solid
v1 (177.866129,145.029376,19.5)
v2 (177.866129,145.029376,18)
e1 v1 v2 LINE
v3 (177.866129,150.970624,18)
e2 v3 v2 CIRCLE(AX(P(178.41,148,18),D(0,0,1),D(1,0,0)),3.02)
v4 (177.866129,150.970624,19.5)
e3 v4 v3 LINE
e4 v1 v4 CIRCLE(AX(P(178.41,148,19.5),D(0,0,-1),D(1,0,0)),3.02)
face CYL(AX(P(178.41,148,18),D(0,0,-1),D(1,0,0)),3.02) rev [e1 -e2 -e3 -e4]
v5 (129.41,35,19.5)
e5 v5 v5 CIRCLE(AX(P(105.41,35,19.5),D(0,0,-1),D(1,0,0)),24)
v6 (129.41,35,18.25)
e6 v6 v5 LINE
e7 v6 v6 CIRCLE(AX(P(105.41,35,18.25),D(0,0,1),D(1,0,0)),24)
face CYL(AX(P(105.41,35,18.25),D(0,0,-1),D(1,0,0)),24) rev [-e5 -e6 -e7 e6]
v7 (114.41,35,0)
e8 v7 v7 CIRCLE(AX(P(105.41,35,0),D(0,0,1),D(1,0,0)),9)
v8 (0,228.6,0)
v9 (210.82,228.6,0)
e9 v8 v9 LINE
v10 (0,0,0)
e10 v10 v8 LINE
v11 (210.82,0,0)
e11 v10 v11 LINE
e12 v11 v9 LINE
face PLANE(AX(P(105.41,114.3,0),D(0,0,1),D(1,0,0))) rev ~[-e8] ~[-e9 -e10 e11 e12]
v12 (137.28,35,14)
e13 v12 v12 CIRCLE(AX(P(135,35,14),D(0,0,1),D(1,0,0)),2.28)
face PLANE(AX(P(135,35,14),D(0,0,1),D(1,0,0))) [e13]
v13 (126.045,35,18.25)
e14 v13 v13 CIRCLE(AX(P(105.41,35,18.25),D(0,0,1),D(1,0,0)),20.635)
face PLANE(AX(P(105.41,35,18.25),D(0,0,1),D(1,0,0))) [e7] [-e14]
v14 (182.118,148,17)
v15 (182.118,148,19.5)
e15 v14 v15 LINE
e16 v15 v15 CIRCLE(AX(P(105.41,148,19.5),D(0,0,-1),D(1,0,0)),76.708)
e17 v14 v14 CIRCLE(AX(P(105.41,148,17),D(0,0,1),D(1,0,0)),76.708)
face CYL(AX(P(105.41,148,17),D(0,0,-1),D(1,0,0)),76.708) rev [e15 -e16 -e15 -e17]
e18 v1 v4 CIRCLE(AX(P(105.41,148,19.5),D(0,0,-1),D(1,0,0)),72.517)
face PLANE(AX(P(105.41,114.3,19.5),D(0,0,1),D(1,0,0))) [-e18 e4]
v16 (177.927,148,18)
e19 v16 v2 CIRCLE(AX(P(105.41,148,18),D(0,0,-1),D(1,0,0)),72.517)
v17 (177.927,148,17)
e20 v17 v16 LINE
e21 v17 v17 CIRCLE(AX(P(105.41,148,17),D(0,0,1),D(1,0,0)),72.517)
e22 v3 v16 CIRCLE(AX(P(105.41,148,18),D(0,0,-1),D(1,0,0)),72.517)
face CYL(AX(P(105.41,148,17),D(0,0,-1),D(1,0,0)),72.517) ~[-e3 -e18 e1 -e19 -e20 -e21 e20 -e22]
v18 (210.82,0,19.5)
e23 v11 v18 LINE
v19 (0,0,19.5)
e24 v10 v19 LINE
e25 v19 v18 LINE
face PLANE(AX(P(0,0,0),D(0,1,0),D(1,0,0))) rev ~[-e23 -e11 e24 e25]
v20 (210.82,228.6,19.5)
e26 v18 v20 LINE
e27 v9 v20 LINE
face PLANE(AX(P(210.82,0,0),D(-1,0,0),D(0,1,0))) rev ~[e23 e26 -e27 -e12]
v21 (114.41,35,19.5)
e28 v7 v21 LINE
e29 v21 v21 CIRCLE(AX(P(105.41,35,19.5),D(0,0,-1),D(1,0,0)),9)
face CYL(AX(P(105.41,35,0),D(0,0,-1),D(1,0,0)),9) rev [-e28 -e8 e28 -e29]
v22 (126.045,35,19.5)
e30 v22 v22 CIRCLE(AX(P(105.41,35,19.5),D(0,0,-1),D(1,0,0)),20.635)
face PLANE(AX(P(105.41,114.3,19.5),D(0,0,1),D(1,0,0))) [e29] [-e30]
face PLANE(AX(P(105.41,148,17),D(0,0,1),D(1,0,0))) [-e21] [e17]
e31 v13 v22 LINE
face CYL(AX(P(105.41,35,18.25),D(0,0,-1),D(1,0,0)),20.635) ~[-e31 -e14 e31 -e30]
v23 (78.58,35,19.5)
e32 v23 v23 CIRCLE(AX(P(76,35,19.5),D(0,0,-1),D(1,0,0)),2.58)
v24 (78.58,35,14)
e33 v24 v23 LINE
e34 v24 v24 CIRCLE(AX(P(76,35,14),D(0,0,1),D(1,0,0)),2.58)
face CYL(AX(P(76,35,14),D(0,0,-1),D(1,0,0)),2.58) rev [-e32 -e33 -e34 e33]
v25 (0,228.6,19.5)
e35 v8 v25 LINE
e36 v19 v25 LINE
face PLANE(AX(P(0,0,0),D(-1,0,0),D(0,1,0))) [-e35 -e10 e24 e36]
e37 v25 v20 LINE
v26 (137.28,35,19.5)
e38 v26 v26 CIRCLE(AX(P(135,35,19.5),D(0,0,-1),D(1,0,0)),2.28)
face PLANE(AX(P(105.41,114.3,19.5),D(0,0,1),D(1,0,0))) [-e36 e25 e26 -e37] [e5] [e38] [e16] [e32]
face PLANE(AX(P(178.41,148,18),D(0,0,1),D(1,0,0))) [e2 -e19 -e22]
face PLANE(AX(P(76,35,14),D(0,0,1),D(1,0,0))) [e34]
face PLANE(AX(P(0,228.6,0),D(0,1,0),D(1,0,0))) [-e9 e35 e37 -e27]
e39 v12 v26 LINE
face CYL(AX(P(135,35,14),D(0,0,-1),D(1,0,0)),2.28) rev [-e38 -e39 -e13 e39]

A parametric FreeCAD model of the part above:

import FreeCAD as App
import Part
import Sketcher
from FreeCAD import Vector
Q = App.Units.Quantity

doc = App.newDocument("Part")
body = doc.addObject("PartDesign::Body", "Body")

# Sketch on XY plane
sketch1 = body.newObject("Sketcher::SketchObject", "Sketch")
sketch1.AttachmentSupport = (doc.getObject("XY_Plane"), [""])
sketch1.MapMode = "FlatFace"
sketch1.AttachmentOffset = App.Placement(Vector(0, 0, 14), App.Rotation())
sketch1.addGeometry(Part.Circle(Vector(76, 35, 0), Vector(0, 0, 1), 2.6), False)
sketch1.addConstraint([
    Sketcher.Constraint("Diameter", 0, Q("5.16 mm")),
    Sketcher.Constraint("DistanceX", -1, 1, 0, 3, Q("76 mm")),
    Sketcher.Constraint("DistanceY", -1, 1, 0, 3, Q("35 mm")),
])
pad1 = body.newObject("PartDesign::Pad", "Pad")
pad1.Profile = sketch1
pad1.Length = 29
body2 = doc.addObject("PartDesign::Body", "Body001")

# Sketch on XY plane
sketch2 = body2.newObject("Sketcher::SketchObject", "Sketch001")
sketch2.AttachmentSupport = (doc.getObject("XY_Plane001"), [""])
sketch2.MapMode = "FlatFace"
sketch2.AttachmentOffset = App.Placement(Vector(0, 0, 17), App.Rotation())
sketch2.addGeometry(Part.Circle(Vector(105, 148, 0), Vector(0, 0, 1), 73), False)
sketch2.addConstraint([
    Sketcher.Constraint("Diameter", 0, Q("145.034 mm")),
    Sketcher.Constraint("DistanceY", -1, 1, 0, 3, Q("148 mm")),
    Sketcher.Constraint("DistanceX", -1, 1, 0, 3, Q("105.41 mm")),
])
pad2 = body2.newObject("PartDesign::Pad", "Pad001")
pad2.Profile = sketch2
pad2.Length = 3
body3 = doc.addObject("PartDesign::Body", "Body002")

# Sketch on XY plane
sketch3 = body3.newObject("Sketcher::SketchObject", "Sketch002")
sketch3.AttachmentSupport = (doc.getObject("XY_Plane002"), [""])
sketch3.MapMode = "FlatFace"
sketch3.AttachmentOffset = App.Placement(Vector(0, 0, 17), App.Rotation())
sketch3.addGeometry(Part.Circle(Vector(105, 148, 0), Vector(0, 0, 1), 77), False)
sketch3.addConstraint([
    Sketcher.Constraint("Diameter", 0, Q("153.416 mm")),
    Sketcher.Constraint("DistanceY", -1, 1, 0, 3, Q("148 mm")),
    Sketcher.Constraint("DistanceX", -1, 1, 0, 3, Q("105.41 mm")),
])
pad3 = body3.newObject("PartDesign::Pad", "Pad002")
pad3.Profile = sketch3
pad3.Length = 3
doc.recompute()

boolean = body3.newObject("PartDesign::Boolean", "Boolean")
boolean.Type = "Cut"
boolean.addObjects([body2])
body4 = doc.addObject("PartDesign::Body", "Body003")

# Sketch on XY plane
sketch4 = body4.newObject("Sketcher::SketchObject", "Sketch003")
sketch4.AttachmentSupport = (doc.getObject("XY_Plane003"), [""])
sketch4.MapMode = "FlatFace"
sketch4.AttachmentOffset = App.Placement(Vector(0, 0, 18), App.Rotation())
sketch4.addGeometry(Part.Circle(Vector(178.4, 148, 0), Vector(0, 0, 1), 3), False)
sketch4.addConstraint([
    Sketcher.Constraint("Diameter", 0, Q("6.04 mm")),
    Sketcher.Constraint("DistanceY", -1, 1, 0, 3, Q("148 mm")),
    Sketcher.Constraint("DistanceX", -1, 1, 0, 3, Q("178.41 mm")),
])
pad4 = body4.newObject("PartDesign::Pad", "Pad003")
pad4.Profile = sketch4
pad4.Length = 2
body5 = doc.addObject("PartDesign::Body", "Body004")

# Sketch on XY plane
sketch5 = body5.newObject("Sketcher::SketchObject", "Sketch004")
sketch5.AttachmentSupport = (doc.getObject("XY_Plane004"), [""])
sketch5.MapMode = "FlatFace"
sketch5.addGeometry(Part.Circle(Vector(105, 35, 0), Vector(0, 0, 1), 9), False)
sketch5.addConstraint([
    Sketcher.Constraint("Diameter", 0, Q("18 mm")),
    Sketcher.Constraint("DistanceY", -1, 1, 0, 3, Q("35 mm")),
    Sketcher.Constraint("DistanceX", -1, 1, 0, 3, Q("105.41 mm")),
])
pad5 = body5.newObject("PartDesign::Pad", "Pad004")
pad5.Profile = sketch5
pad5.Length = 21
body6 = doc.addObject("PartDesign::Body", "Body005")

# Sketch on XY plane
sketch6 = body6.newObject("Sketcher::SketchObject", "Sketch005")
sketch6.AttachmentSupport = (doc.getObject("XY_Plane005"), [""])
sketch6.MapMode = "FlatFace"
sketch6.addGeometry(Part.Circle(Vector(0, 0, 0), Vector(0, 0, 1), 21), False)
sketch6.addConstraint([
    Sketcher.Constraint("Coincident", 0, 3, -1, 1),
    Sketcher.Constraint("Diameter", 0, Q("41.27 mm")),
])
pad6 = body6.newObject("PartDesign::Pad", "Pad005")
pad6.Profile = sketch6
pad6.Length = 41.275
body7 = doc.addObject("PartDesign::Body", "Body006")

# Sketch on XY plane
sketch7 = body7.newObject("Sketcher::SketchObject", "Sketch006")
sketch7.AttachmentSupport = (doc.getObject("XY_Plane006"), [""])
sketch7.MapMode = "FlatFace"
sketch7.addGeometry(Part.Circle(Vector(0, 0, 0), Vector(0, 0, 1), 24), False)
sketch7.addConstraint([
    Sketcher.Constraint("Coincident", 0, 3, -1, 1),
    Sketcher.Constraint("Diameter", 0, Q("48 mm")),
])
pad7 = body7.newObject("PartDesign::Pad", "Pad006")
pad7.Profile = sketch7
pad7.Length = 3.175
doc.recompute()

boolean2 = body7.newObject("PartDesign::Boolean", "Boolean001")
boolean2.Type = "Cut"
boolean2.addObjects([body6])
body8 = doc.addObject("PartDesign::Body", "Body007")
doc.recompute()

body7.Placement = App.Placement(Vector(105.41, 35, 18.25), App.Rotation(Vector(0, 0, 1), 0))
boolean3 = body8.newObject("PartDesign::Boolean", "Boolean002")
boolean3.Type = "Fuse"
boolean3.addObjects([body7])
body9 = doc.addObject("PartDesign::Body", "Body008")
body9.AllowCompound = True

# Sketch on XY plane
sketch8 = body9.newObject("Sketcher::SketchObject", "Sketch007")
sketch8.AttachmentSupport = (doc.getObject("XY_Plane008"), [""])
sketch8.MapMode = "FlatFace"
sketch8.AttachmentOffset = App.Placement(Vector(0, 0, 14), App.Rotation())
sketch8.addGeometry(Part.Circle(Vector(135, 35, 0), Vector(0, 0, 1), 2.3), False)
sketch8.addConstraint([
    Sketcher.Constraint("Diameter", 0, Q("4.56 mm")),
    Sketcher.Constraint("DistanceX", -1, 1, 0, 3, Q("135 mm")),
    Sketcher.Constraint("DistanceY", -1, 1, 0, 3, Q("35 mm")),
])
pad8 = body9.newObject("PartDesign::Pad", "Pad007")
pad8.Profile = sketch8
pad8.Length = 29
doc.recompute()

boolean4 = body9.newObject("PartDesign::Boolean", "Boolean003")
boolean4.Type = "Fuse"
boolean4.addObjects([body])
doc.recompute()

boolean5 = body9.newObject("PartDesign::Boolean", "Boolean004")
boolean5.Type = "Fuse"
boolean5.addObjects([body3])
doc.recompute()

boolean6 = body9.newObject("PartDesign::Boolean", "Boolean005")
boolean6.Type = "Fuse"
boolean6.addObjects([body4])
doc.recompute()

boolean7 = body9.newObject("PartDesign::Boolean", "Boolean006")
boolean7.Type = "Fuse"
boolean7.addObjects([body5])
doc.recompute()

boolean8 = body9.newObject("PartDesign::Boolean", "Boolean007")
boolean8.Type = "Fuse"
boolean8.addObjects([body8])
body10 = doc.addObject("PartDesign::Body", "Body009")

# Sketch on XY plane
sketch9 = body10.newObject("Sketcher::SketchObject", "Sketch008")
sketch9.AttachmentSupport = (doc.getObject("XY_Plane009"), [""])
sketch9.MapMode = "FlatFace"
sketch9.addGeometry([
    Part.LineSegment(Vector(0, 229, 0), Vector(0, 0, 0)),
    Part.LineSegment(Vector(0, 0, 0), Vector(211, 0, 0)),
    Part.LineSegment(Vector(211, 0, 0), Vector(211, 229, 0)),
    Part.LineSegment(Vector(211, 229, 0), Vector(0, 229, 0)),
], False)
sketch9.addConstraint([
    Sketcher.Constraint("Coincident", 0, 2, 1, 1),
    Sketcher.Constraint("Coincident", 1, 2, 2, 1),
    Sketcher.Constraint("Coincident", 2, 2, 3, 1),
    Sketcher.Constraint("Coincident", 3, 2, 0, 1),
    Sketcher.Constraint("Vertical", 0),
    Sketcher.Constraint("Horizontal", 1),
    Sketcher.Constraint("Vertical", 2),
    Sketcher.Constraint("Horizontal", 3),
    Sketcher.Constraint("Coincident", 0, 2, -1, 1),
    Sketcher.Constraint("DistanceY", 0, 2, 0, 1, Q("228.6 mm")),
    Sketcher.Constraint("DistanceX", 1, 1, 1, 2, Q("210.82 mm")),
])
pad9 = body10.newObject("PartDesign::Pad", "Pad008")
pad9.Profile = sketch9
pad9.Length = 19.5
doc.recompute()

boolean9 = body10.newObject("PartDesign::Boolean", "Boolean008")
boolean9.Type = "Cut"
boolean9.addObjects([body9])

doc.recompute()
